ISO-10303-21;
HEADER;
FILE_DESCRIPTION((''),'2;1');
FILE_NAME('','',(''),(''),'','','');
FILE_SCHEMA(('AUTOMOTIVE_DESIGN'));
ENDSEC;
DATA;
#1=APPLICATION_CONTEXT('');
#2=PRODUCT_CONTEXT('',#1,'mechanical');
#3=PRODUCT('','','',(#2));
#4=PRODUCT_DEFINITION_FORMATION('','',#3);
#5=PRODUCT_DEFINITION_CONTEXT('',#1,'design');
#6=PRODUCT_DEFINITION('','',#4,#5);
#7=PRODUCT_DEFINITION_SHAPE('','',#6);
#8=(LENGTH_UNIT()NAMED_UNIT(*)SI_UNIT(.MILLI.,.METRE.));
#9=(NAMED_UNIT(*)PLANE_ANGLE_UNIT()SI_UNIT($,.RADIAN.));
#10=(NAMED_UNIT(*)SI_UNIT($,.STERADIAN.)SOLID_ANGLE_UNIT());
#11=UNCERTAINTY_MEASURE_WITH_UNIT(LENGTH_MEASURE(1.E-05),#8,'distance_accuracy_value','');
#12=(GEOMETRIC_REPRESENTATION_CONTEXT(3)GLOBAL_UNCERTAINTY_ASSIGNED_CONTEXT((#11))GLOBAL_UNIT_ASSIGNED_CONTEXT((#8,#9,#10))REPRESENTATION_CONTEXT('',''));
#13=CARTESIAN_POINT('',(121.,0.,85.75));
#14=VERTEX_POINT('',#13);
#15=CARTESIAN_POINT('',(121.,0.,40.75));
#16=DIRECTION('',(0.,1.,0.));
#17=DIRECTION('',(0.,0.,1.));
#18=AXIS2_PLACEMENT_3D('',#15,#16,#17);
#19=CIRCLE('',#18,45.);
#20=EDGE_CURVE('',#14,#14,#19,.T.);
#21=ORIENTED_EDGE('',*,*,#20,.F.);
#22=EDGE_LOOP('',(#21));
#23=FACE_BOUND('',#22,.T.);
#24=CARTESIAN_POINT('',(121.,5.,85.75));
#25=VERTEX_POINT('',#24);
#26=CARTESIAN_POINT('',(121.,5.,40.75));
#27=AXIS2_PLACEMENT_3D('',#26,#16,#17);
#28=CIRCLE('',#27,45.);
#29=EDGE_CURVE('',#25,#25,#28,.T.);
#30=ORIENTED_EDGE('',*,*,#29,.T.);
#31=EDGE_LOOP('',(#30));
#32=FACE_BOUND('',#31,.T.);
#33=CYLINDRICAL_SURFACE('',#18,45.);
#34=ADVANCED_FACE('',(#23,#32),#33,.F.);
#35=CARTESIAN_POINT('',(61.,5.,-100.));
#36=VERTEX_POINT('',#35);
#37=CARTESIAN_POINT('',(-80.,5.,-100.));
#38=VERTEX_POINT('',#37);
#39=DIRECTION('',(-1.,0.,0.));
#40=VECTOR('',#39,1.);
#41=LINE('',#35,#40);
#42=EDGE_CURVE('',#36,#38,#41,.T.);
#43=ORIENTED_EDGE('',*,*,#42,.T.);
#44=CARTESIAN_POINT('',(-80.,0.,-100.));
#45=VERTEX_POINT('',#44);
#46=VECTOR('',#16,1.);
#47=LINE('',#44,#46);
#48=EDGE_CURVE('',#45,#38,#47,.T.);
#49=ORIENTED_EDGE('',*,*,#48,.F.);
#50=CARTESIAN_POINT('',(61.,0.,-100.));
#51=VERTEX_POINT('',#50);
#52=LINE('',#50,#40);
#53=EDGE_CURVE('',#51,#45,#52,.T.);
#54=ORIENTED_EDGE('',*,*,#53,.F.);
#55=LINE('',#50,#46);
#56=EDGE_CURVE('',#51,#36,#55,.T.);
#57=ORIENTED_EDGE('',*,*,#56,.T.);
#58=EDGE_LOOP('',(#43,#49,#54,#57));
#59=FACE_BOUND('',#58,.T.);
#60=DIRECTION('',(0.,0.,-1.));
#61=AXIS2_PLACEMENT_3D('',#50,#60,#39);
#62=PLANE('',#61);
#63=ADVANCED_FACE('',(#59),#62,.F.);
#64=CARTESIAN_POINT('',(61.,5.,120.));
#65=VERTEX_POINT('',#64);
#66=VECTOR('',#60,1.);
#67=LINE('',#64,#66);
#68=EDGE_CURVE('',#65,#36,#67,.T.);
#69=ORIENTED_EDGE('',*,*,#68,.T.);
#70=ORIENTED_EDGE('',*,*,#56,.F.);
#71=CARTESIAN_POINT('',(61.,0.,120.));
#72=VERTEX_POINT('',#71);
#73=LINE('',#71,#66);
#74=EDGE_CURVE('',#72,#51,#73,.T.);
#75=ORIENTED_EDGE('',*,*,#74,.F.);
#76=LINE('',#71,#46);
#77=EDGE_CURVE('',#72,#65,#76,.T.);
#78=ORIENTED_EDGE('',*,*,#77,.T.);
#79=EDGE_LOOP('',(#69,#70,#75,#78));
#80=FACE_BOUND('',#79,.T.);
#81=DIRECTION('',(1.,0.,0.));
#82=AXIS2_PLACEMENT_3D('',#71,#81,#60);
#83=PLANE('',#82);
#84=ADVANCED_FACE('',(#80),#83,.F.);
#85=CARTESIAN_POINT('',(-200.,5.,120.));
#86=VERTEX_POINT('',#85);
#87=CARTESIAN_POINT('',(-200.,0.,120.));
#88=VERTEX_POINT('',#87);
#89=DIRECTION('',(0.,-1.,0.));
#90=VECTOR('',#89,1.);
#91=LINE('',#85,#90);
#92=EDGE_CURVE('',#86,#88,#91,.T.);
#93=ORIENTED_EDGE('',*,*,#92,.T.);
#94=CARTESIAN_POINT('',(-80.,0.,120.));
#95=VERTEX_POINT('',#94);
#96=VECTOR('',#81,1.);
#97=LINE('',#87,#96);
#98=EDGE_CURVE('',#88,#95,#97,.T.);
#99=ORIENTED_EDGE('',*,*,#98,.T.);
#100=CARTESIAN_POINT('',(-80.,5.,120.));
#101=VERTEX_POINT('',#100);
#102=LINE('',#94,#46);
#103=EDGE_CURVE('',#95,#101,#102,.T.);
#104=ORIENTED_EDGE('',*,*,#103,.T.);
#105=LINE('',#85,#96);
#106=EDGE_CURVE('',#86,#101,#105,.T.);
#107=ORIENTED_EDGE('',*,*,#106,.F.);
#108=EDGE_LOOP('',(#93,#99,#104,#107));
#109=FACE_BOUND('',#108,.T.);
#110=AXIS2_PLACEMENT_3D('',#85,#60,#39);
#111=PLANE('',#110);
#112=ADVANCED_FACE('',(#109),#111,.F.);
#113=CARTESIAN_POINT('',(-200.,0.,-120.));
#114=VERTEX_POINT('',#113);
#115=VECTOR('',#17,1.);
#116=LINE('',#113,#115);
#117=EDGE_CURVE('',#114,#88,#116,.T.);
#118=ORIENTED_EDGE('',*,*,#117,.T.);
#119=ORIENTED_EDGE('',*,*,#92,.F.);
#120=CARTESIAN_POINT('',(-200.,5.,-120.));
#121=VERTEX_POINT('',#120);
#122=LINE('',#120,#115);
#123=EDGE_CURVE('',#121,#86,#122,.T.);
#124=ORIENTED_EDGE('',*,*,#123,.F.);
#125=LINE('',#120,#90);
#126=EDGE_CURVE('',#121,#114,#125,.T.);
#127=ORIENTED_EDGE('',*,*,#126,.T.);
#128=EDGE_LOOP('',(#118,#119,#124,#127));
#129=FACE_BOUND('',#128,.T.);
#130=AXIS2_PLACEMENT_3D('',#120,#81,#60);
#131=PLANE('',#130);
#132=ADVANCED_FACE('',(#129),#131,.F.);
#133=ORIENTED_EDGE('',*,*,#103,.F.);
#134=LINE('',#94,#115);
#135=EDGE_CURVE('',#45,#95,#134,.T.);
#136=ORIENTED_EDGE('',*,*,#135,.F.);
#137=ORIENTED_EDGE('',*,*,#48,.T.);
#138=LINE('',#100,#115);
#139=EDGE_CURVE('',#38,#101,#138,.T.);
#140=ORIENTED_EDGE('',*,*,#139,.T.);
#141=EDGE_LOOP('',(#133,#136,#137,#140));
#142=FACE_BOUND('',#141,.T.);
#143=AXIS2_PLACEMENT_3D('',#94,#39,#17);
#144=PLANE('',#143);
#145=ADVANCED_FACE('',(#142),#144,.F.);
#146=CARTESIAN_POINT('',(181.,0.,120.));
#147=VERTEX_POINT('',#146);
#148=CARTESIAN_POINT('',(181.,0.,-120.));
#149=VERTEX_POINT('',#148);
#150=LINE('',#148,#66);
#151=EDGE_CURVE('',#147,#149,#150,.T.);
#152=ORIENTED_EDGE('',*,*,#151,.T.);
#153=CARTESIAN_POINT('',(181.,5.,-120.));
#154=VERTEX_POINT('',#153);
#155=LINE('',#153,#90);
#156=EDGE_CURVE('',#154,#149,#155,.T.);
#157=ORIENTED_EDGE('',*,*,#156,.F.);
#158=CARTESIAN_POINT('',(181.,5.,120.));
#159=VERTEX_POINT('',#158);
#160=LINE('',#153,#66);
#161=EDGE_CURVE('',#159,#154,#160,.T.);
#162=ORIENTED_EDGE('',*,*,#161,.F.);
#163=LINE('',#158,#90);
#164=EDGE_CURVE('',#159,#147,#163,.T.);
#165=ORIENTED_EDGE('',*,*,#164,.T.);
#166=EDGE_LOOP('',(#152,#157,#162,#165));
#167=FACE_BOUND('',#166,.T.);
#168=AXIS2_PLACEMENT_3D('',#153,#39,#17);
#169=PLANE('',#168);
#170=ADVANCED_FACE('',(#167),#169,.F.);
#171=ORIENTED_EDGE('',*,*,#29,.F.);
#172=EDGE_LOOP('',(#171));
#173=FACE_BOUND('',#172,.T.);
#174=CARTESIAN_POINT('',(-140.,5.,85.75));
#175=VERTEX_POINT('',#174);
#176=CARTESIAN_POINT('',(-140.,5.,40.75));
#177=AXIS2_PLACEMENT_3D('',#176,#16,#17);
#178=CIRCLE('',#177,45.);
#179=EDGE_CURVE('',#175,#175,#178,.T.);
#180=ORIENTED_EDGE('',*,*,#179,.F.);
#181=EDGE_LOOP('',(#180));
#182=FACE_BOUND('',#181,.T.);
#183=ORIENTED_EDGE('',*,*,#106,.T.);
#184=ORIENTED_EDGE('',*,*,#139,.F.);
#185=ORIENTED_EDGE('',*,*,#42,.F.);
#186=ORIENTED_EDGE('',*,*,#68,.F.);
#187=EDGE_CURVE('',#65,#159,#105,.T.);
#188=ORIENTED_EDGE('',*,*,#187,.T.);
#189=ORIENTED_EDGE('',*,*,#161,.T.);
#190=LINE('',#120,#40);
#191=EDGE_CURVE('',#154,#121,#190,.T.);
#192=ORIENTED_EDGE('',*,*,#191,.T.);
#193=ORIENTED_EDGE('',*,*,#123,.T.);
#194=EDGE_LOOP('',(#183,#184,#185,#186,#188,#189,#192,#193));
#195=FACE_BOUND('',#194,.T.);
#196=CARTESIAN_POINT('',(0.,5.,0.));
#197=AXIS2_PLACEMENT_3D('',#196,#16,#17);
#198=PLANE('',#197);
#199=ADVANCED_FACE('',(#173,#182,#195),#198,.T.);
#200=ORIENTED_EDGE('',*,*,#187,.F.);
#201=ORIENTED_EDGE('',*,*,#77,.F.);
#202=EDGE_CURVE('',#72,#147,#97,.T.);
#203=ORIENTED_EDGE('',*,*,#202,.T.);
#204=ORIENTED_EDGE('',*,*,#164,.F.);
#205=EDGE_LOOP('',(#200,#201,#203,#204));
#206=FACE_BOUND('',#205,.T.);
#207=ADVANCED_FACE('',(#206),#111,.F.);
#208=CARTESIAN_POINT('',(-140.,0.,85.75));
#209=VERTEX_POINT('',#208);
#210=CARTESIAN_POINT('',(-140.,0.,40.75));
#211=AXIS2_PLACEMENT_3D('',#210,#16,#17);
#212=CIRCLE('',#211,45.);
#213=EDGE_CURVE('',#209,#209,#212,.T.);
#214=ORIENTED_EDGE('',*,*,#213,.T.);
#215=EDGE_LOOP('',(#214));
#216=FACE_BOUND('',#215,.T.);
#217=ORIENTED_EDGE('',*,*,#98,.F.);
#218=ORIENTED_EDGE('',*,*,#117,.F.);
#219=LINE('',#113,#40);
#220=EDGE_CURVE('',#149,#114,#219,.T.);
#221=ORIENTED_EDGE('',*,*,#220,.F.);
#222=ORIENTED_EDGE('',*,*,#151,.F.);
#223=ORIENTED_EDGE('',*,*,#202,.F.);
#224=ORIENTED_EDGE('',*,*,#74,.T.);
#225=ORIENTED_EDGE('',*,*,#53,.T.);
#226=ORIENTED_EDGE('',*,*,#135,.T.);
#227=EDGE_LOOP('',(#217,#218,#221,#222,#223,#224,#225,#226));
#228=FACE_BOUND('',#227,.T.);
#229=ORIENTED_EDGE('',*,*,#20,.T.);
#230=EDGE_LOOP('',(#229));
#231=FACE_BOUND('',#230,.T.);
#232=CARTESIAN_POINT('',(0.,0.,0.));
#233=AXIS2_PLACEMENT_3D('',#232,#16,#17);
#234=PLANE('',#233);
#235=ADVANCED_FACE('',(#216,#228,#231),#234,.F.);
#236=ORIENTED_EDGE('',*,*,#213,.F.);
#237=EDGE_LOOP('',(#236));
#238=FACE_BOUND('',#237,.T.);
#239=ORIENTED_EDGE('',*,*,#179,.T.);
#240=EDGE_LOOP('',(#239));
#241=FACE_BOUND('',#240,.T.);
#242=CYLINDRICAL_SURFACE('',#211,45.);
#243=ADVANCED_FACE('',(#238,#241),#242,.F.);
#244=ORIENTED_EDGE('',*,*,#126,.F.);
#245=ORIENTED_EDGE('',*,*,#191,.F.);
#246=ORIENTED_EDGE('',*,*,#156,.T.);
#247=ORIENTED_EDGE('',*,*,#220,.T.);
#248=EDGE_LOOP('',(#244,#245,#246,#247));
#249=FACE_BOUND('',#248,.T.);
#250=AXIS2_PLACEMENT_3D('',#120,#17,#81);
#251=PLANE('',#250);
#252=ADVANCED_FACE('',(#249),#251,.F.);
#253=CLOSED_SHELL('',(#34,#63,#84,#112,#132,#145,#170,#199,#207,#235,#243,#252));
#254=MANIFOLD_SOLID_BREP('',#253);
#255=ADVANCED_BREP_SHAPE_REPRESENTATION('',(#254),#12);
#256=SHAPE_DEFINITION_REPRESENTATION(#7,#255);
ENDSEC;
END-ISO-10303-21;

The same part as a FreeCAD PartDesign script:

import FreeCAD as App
import Part
import Sketcher

V = App.Vector

doc = App.newDocument("Part")
body = doc.addObject("PartDesign::Body", "Body")

sketch1 = body.newObject("Sketcher::SketchObject", "Sketch")
sketch1.AttachmentSupport = (doc.getObject("XZ_Plane"), [""])
sketch1.MapMode = "FlatFace"
sketch1.addGeometry([
    Part.LineSegment(V(-200, -120, 0), V(-200, 120, 0)),
    Part.LineSegment(V(-200, 120, 0), V(181, 120, 0)),
    Part.LineSegment(V(181, 120, 0), V(181, -120, 0)),
    Part.LineSegment(V(181, -120, 0), V(-200, -120, 0)),
], False)
sketch1.addConstraint([
    Sketcher.Constraint("Coincident", 0, 2, 1, 1),
    Sketcher.Constraint("Coincident", 1, 2, 2, 1),
    Sketcher.Constraint("Coincident", 2, 2, 3, 1),
    Sketcher.Constraint("Coincident", 3, 2, 0, 1),
    Sketcher.Constraint("Vertical", 0),
    Sketcher.Constraint("Horizontal", 1),
    Sketcher.Constraint("Vertical", 2),
    Sketcher.Constraint("Horizontal", 3),
    Sketcher.Constraint("DistanceX", 1, 1, 1, 2, 381.0),
    Sketcher.Constraint("DistanceY", 0, 1, 0, 2, 240.0),
    Sketcher.Constraint("DistanceX", 0, 2, -1, 1, 200.0),
    Sketcher.Constraint("DistanceY", -1, 1, 0, 2, 120.0),
])
pad1 = body.newObject("PartDesign::Pad", "Pad")
pad1.Profile = sketch1
pad1.Length = 5
pad1.Reversed = True

sketch2 = body.newObject("Sketcher::SketchObject", "Sketch001")
sketch2.AttachmentSupport = (doc.getObject("XZ_Plane"), [""])
sketch2.MapMode = "FlatFace"
sketch2.AttachmentOffset = App.Placement(V(0, 0, -5), App.Rotation())
sketch2.addGeometry([
    Part.Circle(V(-140, 41, 0), V(0, 0, 1), 45),
    Part.Circle(V(121, 41, 0), V(0, 0, 1), 45),
], False)
sketch2.addConstraint([
    Sketcher.Constraint("Equal", 0, 1),
    Sketcher.Constraint("Horizontal", 0, 3, 1, 3),
    Sketcher.Constraint("Diameter", 0, 90.0),
    Sketcher.Constraint("DistanceX", 0, 3, -1, 1, 140.0),
    Sketcher.Constraint("DistanceX", -1, 1, 1, 3, 121.0),
    Sketcher.Constraint("DistanceY", -1, 1, 0, 3, 40.75),
])
pocket1 = body.newObject("PartDesign::Pocket", "Pocket")
pocket1.Profile = sketch2
pocket1.Length = 5
pocket1.Reversed = True

sketch3 = body.newObject("Sketcher::SketchObject", "Sketch002")
sketch3.AttachmentSupport = (doc.getObject("XZ_Plane"), [""])
sketch3.MapMode = "FlatFace"
sketch3.AttachmentOffset = App.Placement(V(0, 0, -5), App.Rotation())
sketch3.addGeometry([
    Part.LineSegment(V(-80, -100, 0), V(-80, 120, 0)),
    Part.LineSegment(V(-80, 120, 0), V(61, 120, 0)),
    Part.LineSegment(V(61, 120, 0), V(61, -100, 0)),
    Part.LineSegment(V(61, -100, 0), V(-80, -100, 0)),
], False)
sketch3.addConstraint([
    Sketcher.Constraint("Coincident", 0, 2, 1, 1),
    Sketcher.Constraint("Coincident", 1, 2, 2, 1),
    Sketcher.Constraint("Coincident", 2, 2, 3, 1),
    Sketcher.Constraint("Coincident", 3, 2, 0, 1),
    Sketcher.Constraint("Vertical", 0),
    Sketcher.Constraint("Horizontal", 1),
    Sketcher.Constraint("Vertical", 2),
    Sketcher.Constraint("Horizontal", 3),
    Sketcher.Constraint("DistanceX", 1, 1, 1, 2, 141.0),
    Sketcher.Constraint("DistanceY", 0, 1, 0, 2, 220.0),
    Sketcher.Constraint("DistanceX", 0, 2, -1, 1, 80.0),
    Sketcher.Constraint("DistanceY", -1, 1, 0, 2, 120.0),
])
pocket2 = body.newObject("PartDesign::Pocket", "Pocket001")
pocket2.Profile = sketch3
pocket2.Length = 5
pocket2.Reversed = True

doc.recompute()
